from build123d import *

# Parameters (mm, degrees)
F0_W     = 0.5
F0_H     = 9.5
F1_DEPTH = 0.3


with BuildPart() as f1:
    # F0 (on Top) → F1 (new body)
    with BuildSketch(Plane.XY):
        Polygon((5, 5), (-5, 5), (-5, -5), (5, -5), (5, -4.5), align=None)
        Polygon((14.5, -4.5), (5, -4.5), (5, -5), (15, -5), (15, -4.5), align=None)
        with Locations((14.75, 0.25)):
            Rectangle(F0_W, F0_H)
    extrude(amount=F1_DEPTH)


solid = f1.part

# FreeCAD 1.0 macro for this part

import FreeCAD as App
import Part
import Sketcher
from FreeCAD import Vector
Q = App.Units.Quantity


def add_polygon(sketch, points):
    """Adds a closed chain of lines whose ends are joined by coincident constraints."""
    first, n = sketch.GeometryCount, len(points)
    for a, b in zip(points, points[1:] + points[:1]):
        sketch.addGeometry(Part.LineSegment(App.Vector(*a, 0), App.Vector(*b, 0)), False)
    for i in range(n):
        sketch.addConstraint(Sketcher.Constraint("Coincident", first + i, 2, first + (i + 1) % n, 1))

doc = App.newDocument("Part")
params = doc.addObject("Spreadsheet::Sheet", "Params")
for row, (alias, value) in enumerate([
    ("sketch1_width", "10 mm"),
    ("sketch1_width2", "20 mm"),
    ("sketch1_width3", "0.5 mm"),
    ("pad1_length", "0.3 mm"),
], start=1):
    params.set(f"A{row}", alias)
    params.set(f"B{row}", "=" + value)
    params.setAlias(f"B{row}", alias)

body = doc.addObject("PartDesign::Body", "Body")

# Sketch on XY plane
sketch1 = body.newObject("Sketcher::SketchObject", "Sketch")
sketch1.AttachmentSupport = (doc.getObject("XY_Plane"), [""])
sketch1.MapMode = "FlatFace"
add_polygon(sketch1, [(5, 5), (-5, 5), (-5, -5), (15, -5), (15, 5), (14.5, 5), (14.5, -4.5), (5, -4.5)])  # lines 0-7
sketch1.addConstraint([
    Sketcher.Constraint("Horizontal", 0),
    Sketcher.Constraint("Vertical", 1),
    Sketcher.Constraint("Horizontal", 2),
    Sketcher.Constraint("Vertical", 3),
    Sketcher.Constraint("Horizontal", 4),
    Sketcher.Constraint("Vertical", 5),
    Sketcher.Constraint("Horizontal", 6),
    Sketcher.Constraint("Vertical", 7),
    Sketcher.Constraint("Symmetric", 1, 2, 7, 2, -1, 1),
    Sketcher.Constraint("Horizontal", 0, 2, 3, 2),
    Sketcher.Constraint("Equal", 0, 1),
    Sketcher.Constraint("Equal", 6, 5),
    Sketcher.Constraint("DistanceX", 0, 2, 0, 1, Q("10 mm")),
    Sketcher.Constraint("DistanceX", 2, 1, 2, 2, Q("20 mm")),
    Sketcher.Constraint("DistanceX", 4, 2, 4, 1, Q("0.5 mm")),
])
sketch1.setExpression("Constraints[20]", "Params.sketch1_width")
sketch1.setExpression("Constraints[21]", "Params.sketch1_width2")
sketch1.setExpression("Constraints[22]", "Params.sketch1_width3")
pad1 = body.newObject("PartDesign::Pad", "Pad")
pad1.Profile = sketch1
pad1.setExpression("Length", "Params.pad1_length")

doc.recompute()
